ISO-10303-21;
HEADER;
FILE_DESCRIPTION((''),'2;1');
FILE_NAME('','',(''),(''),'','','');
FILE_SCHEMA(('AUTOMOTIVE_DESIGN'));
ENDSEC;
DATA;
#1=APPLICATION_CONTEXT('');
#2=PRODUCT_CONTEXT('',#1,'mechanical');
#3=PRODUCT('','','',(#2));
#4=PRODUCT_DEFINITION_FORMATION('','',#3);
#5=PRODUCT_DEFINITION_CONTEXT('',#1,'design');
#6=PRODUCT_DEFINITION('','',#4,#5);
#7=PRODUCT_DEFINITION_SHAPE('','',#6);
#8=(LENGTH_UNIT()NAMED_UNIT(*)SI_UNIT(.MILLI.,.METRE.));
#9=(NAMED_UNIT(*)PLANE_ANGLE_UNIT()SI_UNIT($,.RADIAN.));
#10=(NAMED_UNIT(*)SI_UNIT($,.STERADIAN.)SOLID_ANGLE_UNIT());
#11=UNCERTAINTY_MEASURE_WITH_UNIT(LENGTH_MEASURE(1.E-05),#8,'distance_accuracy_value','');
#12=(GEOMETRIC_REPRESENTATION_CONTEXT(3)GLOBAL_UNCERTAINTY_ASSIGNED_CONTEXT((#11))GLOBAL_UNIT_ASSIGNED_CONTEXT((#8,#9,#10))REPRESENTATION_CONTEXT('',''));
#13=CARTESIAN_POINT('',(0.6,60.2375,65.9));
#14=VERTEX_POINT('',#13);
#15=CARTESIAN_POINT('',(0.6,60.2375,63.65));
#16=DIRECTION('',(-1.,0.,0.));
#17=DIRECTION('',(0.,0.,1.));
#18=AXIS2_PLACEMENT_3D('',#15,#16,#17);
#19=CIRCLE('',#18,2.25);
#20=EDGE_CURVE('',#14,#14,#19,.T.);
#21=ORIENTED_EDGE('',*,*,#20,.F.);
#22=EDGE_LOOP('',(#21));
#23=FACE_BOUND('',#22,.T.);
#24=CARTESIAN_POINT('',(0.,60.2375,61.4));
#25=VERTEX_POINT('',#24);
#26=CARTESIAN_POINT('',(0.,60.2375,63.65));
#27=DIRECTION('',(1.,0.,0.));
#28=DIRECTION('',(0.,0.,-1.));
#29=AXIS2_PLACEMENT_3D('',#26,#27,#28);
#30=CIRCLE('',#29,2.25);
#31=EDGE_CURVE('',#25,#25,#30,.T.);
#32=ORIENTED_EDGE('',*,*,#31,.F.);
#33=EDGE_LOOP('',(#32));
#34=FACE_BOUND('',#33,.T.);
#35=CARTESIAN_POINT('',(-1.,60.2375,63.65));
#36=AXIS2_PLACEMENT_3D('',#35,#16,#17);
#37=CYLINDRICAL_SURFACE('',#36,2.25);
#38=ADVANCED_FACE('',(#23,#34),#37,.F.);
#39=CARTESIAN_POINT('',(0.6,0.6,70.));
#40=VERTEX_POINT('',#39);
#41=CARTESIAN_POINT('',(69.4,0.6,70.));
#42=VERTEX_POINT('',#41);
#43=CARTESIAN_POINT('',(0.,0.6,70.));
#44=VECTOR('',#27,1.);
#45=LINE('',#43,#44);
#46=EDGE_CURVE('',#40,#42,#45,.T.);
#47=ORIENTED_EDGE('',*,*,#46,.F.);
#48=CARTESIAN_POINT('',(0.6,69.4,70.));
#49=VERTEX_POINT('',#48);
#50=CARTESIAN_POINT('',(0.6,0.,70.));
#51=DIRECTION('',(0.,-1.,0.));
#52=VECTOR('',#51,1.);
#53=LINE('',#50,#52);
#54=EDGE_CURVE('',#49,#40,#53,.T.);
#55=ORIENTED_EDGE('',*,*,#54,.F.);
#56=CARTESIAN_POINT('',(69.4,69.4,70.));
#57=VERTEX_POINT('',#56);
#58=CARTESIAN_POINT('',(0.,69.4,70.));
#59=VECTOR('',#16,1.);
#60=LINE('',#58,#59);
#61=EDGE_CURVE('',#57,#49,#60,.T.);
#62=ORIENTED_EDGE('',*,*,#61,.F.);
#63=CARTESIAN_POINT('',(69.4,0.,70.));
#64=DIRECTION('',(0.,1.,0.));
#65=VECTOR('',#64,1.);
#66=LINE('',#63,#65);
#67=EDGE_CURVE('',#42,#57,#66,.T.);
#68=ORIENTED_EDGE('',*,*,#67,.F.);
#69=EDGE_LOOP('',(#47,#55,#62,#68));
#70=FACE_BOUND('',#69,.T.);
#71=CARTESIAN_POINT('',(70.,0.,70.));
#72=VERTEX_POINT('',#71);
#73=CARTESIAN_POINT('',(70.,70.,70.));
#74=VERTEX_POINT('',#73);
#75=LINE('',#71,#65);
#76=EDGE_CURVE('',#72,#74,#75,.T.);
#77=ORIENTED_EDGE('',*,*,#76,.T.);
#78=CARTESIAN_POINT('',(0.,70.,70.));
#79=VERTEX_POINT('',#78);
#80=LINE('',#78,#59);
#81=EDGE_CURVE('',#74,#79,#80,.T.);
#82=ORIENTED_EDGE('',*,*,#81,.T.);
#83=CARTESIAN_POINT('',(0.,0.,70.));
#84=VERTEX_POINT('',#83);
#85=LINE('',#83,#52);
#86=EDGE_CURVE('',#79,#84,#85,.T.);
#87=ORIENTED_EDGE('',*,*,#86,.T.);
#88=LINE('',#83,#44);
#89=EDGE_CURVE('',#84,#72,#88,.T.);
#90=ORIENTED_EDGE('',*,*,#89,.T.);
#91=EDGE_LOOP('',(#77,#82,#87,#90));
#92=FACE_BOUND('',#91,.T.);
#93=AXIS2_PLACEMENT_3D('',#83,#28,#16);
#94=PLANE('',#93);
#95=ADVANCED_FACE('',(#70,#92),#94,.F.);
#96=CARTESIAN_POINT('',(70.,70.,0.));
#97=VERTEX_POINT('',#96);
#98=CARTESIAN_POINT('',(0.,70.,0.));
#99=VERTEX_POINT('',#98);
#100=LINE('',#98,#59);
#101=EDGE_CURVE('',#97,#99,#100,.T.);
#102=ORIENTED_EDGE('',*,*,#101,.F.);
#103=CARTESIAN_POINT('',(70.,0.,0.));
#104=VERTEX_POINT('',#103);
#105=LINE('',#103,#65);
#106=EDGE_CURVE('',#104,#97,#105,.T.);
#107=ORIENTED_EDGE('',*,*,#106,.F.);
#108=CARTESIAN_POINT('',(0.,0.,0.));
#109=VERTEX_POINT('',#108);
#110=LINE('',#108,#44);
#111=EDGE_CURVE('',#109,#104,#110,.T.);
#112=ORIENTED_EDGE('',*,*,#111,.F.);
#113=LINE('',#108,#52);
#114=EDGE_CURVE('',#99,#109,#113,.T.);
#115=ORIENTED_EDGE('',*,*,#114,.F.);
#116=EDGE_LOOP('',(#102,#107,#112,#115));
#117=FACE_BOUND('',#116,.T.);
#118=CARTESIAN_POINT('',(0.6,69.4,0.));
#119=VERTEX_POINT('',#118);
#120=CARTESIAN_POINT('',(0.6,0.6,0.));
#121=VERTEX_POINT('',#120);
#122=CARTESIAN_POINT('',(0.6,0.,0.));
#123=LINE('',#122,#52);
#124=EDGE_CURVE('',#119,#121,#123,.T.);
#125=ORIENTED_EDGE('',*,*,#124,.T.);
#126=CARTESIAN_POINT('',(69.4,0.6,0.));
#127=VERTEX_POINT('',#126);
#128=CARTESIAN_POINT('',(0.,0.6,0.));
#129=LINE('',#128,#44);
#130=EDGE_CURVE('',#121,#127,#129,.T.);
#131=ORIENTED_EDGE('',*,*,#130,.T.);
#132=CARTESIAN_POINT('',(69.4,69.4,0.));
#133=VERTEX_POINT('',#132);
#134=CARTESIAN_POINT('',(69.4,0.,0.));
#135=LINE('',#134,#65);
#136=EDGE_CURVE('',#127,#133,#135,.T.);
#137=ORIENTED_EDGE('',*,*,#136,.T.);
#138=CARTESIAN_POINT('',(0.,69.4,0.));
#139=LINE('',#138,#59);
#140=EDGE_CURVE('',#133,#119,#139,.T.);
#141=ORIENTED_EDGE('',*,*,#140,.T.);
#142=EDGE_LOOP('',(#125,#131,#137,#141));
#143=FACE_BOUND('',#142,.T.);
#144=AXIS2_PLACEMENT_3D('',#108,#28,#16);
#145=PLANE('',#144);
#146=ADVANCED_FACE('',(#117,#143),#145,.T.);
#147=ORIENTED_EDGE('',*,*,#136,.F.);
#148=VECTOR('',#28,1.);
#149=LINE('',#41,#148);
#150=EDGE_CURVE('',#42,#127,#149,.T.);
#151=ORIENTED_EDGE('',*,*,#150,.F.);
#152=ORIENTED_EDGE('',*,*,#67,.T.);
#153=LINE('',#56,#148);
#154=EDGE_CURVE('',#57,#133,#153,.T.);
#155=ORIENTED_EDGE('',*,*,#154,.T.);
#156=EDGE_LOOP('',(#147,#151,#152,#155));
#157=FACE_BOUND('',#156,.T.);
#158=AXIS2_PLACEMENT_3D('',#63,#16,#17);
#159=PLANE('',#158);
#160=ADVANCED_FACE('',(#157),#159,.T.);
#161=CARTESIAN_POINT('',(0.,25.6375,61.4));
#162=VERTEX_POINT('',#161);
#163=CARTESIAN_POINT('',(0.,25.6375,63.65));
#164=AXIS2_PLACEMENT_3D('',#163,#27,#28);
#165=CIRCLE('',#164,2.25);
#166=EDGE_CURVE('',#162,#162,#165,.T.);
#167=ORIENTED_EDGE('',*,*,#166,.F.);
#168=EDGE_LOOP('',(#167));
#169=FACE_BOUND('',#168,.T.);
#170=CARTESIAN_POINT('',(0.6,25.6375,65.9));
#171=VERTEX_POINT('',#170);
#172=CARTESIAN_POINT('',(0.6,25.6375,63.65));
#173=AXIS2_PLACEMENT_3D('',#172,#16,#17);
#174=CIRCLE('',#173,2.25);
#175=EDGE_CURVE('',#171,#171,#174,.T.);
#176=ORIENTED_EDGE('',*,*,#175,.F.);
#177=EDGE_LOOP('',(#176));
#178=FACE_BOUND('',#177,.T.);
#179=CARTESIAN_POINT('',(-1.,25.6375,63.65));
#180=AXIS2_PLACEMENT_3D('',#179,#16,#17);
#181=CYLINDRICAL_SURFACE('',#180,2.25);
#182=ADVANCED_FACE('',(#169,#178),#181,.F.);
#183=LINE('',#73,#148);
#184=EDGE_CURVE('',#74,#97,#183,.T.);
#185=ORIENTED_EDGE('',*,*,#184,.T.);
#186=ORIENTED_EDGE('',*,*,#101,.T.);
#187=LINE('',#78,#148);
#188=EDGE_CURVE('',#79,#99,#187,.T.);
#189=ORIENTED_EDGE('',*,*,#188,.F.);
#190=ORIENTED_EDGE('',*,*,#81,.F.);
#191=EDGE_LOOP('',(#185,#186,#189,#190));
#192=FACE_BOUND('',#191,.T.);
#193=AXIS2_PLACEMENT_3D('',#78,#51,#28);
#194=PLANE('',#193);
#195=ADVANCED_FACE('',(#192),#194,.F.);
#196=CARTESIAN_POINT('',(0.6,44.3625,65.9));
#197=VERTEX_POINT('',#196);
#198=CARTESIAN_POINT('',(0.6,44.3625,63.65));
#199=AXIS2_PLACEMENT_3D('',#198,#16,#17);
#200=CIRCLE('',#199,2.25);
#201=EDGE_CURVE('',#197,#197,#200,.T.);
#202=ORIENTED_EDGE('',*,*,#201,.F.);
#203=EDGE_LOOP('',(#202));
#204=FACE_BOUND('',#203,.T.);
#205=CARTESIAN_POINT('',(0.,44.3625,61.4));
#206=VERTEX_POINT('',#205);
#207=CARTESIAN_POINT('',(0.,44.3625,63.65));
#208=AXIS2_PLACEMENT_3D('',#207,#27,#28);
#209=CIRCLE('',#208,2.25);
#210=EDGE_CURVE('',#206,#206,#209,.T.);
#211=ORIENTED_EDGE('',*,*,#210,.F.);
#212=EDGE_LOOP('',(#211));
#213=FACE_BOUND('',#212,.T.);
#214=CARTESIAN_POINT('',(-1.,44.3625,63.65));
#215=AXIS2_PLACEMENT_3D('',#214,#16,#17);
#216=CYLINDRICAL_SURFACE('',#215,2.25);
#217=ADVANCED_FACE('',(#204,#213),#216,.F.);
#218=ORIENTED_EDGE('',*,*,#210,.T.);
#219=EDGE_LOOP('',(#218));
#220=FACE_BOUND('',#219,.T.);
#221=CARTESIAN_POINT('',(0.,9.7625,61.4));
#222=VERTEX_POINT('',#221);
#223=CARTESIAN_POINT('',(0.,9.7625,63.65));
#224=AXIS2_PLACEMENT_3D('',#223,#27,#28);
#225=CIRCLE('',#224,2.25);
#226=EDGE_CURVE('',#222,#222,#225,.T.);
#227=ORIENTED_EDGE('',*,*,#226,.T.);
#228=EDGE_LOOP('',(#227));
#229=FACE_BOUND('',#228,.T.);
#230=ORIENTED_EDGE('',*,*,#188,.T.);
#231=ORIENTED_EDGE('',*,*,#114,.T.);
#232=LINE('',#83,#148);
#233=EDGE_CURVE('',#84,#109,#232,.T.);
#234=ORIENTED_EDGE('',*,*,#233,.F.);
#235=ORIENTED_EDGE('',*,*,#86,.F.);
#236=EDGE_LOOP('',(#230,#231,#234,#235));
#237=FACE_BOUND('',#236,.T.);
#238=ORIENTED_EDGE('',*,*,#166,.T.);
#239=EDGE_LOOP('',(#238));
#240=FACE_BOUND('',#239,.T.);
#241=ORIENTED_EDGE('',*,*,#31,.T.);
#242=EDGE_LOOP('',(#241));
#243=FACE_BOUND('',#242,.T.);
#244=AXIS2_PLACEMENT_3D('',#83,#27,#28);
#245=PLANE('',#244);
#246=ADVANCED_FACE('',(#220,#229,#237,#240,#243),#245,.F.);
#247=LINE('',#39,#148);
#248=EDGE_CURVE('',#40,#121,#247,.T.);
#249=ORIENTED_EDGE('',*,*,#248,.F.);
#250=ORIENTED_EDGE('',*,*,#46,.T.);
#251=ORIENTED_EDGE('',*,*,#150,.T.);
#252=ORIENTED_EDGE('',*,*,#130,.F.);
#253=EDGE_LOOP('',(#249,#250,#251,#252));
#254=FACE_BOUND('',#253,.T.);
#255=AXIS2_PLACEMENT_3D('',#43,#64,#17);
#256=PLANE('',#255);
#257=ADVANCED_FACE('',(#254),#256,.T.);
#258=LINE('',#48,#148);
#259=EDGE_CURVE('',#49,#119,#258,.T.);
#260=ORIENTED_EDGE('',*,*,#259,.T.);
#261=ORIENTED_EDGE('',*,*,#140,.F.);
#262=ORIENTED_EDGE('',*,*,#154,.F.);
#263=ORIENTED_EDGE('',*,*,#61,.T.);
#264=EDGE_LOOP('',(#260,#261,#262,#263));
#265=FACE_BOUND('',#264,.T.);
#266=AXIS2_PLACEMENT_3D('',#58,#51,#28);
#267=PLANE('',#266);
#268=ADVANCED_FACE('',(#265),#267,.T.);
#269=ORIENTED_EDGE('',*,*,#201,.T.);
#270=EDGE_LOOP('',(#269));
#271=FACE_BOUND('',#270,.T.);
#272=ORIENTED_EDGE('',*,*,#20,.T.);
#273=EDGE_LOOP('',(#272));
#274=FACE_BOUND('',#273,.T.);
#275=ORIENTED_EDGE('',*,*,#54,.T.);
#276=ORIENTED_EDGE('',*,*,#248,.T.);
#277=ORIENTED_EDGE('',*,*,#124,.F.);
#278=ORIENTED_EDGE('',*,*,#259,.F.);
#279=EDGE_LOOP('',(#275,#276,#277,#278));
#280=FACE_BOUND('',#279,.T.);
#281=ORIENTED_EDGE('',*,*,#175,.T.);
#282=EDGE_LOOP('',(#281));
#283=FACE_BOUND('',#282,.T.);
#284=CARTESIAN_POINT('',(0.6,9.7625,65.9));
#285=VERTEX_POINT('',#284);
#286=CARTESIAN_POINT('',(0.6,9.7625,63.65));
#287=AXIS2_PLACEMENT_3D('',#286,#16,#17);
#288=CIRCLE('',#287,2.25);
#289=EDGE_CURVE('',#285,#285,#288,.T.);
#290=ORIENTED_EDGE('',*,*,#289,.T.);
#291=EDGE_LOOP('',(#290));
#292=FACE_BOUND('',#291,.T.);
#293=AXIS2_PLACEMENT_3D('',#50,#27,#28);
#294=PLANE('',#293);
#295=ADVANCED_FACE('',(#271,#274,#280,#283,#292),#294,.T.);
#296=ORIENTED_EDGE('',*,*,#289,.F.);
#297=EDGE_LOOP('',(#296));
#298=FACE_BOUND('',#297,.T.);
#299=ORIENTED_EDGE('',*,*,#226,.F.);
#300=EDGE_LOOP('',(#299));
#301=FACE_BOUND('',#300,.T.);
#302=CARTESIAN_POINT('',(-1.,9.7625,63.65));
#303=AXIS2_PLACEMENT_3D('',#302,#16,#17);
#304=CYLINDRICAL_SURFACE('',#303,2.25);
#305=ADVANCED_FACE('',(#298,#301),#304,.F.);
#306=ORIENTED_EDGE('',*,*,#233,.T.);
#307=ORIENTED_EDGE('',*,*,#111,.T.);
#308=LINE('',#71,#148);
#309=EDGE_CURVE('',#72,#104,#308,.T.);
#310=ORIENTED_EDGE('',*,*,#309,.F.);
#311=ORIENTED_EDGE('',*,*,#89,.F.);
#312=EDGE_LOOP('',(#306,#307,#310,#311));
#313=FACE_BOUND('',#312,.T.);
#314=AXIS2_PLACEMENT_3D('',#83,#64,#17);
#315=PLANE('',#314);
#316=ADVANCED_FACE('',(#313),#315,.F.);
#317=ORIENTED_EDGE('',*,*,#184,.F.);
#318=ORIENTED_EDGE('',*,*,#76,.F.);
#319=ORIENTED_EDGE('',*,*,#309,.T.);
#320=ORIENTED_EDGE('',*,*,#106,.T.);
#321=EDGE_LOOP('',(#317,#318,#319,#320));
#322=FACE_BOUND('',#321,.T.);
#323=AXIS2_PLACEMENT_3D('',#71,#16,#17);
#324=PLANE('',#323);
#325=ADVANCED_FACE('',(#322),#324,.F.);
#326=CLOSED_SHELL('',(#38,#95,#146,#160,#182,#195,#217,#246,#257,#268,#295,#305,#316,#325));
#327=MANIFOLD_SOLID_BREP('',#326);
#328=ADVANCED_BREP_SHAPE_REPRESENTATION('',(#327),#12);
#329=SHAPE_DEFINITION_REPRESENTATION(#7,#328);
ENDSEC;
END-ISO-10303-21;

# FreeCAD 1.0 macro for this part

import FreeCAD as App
import Part
import Sketcher

V = App.Vector


def faces_at(feature, points):
    """Names of the faces that lie closest to the given points."""
    faces = feature.Shape.Faces
    near = lambda p: min(range(len(faces)), key=lambda i: faces[i].distToShape(Part.Vertex(*p))[0])
    return sorted({f"Face{near(p) + 1}" for p in points})


def add_polygon(sketch, points):
    """Adds a closed chain of lines whose ends are joined by coincident constraints."""
    first, n = sketch.GeometryCount, len(points)
    for a, b in zip(points, points[1:] + points[:1]):
        sketch.addGeometry(Part.LineSegment(App.Vector(*a, 0), App.Vector(*b, 0)), False)
    for i in range(n):
        sketch.addConstraint(Sketcher.Constraint("Coincident", first + i, 2, first + (i + 1) % n, 1))

doc = App.newDocument("Part")
params = doc.addObject("Spreadsheet::Sheet", "Params")
for row, (alias, value) in enumerate([
    ("sketch1_width", "70 mm"),
    ("pad1_length", "70 mm"),
    ("thickness_wall", "0.6 mm"),
    ("sketch2_diameter", "4.5 mm"),
    ("pocket1_length", "1.6 mm"),
    ("sketch3_diameter", "4.5 mm"),
    ("pocket2_length", "1.6 mm"),
    ("sketch4_diameter", "4.5 mm"),
    ("pocket3_length", "1.6 mm"),
    ("sketch5_diameter", "4.5 mm"),
    ("pocket4_length", "1.6 mm"),
], start=1):
    params.set(f"A{row}", alias)
    params.set(f"B{row}", "=" + value)
    params.setAlias(f"B{row}", alias)

body = doc.addObject("PartDesign::Body", "Body")

sketch1 = doc.addObject("Sketcher::SketchObject", "Sketch")
body.addObject(sketch1)
sketch1.AttachmentSupport = (doc.XY_Plane, [""])
sketch1.MapMode = "FlatFace"
add_polygon(sketch1, [(0, 70), (0, 0), (70, 0), (70, 70)])
sketch1.addConstraint([
    Sketcher.Constraint("Vertical", 0),
    Sketcher.Constraint("Horizontal", 1),
    Sketcher.Constraint("Vertical", 2),
    Sketcher.Constraint("Horizontal", 3),
    Sketcher.Constraint("Coincident", 0, 2, -1, 1),
    Sketcher.Constraint("Equal", 3, 0),
    Sketcher.Constraint("DistanceX", 1, 1, 1, 2, 70.0),
])
sketch1.setExpression("Constraints[10]", "Params.sketch1_width")
pad1 = doc.addObject("PartDesign::Pad", "Pad")
body.addObject(pad1)
pad1.Profile = sketch1
pad1.setExpression("Length", "Params.pad1_length")
doc.recompute()

thickness = doc.addObject("PartDesign::Thickness", "Thickness")
body.addObject(thickness)
thickness.Base = (pad1, faces_at(pad1, [(35, 35, 70), (35, 35, 0)]))
thickness.setExpression("Value", "Params.thickness_wall")
thickness.Reversed = True
thickness.Join = "Intersection"

sketch2 = doc.addObject("Sketcher::SketchObject", "Sketch001")
body.addObject(sketch2)
sketch2.AttachmentSupport = (doc.YZ_Plane, [""])
sketch2.MapMode = "FlatFace"
sketch2.AttachmentOffset = App.Placement(V(0, 0, -1), App.Rotation())
sketch2.addGeometry(Part.Circle(V(9.8, 63.6, 0), V(0, 0, 1), 2.2), False)
sketch2.addConstraint([
    Sketcher.Constraint("Diameter", 0, 4.5),
    Sketcher.Constraint("DistanceY", -1, 1, 0, 3, 63.65),
    Sketcher.Constraint("DistanceX", -1, 1, 0, 3, 9.7625),
])
sketch2.setExpression("Constraints[0]", "Params.sketch2_diameter")
pocket1 = doc.addObject("PartDesign::Pocket", "Pocket")
body.addObject(pocket1)
pocket1.Profile = sketch2
pocket1.setExpression("Length", "Params.pocket1_length")
pocket1.Reversed = True

sketch3 = doc.addObject("Sketcher::SketchObject", "Sketch002")
body.addObject(sketch3)
sketch3.AttachmentSupport = (doc.YZ_Plane, [""])
sketch3.MapMode = "FlatFace"
sketch3.AttachmentOffset = App.Placement(V(0, 0, -1), App.Rotation())
sketch3.addGeometry(Part.Circle(V(25.6, 63.6, 0), V(0, 0, 1), 2.2), False)
sketch3.addConstraint([
    Sketcher.Constraint("Diameter", 0, 4.5),
    Sketcher.Constraint("DistanceY", -1, 1, 0, 3, 63.65),
    Sketcher.Constraint("DistanceX", -1, 1, 0, 3, 25.6375),
])
sketch3.setExpression("Constraints[0]", "Params.sketch3_diameter")
pocket2 = doc.addObject("PartDesign::Pocket", "Pocket001")
body.addObject(pocket2)
pocket2.Profile = sketch3
pocket2.setExpression("Length", "Params.pocket2_length")
pocket2.Reversed = True

sketch4 = doc.addObject("Sketcher::SketchObject", "Sketch003")
body.addObject(sketch4)
sketch4.AttachmentSupport = (doc.YZ_Plane, [""])
sketch4.MapMode = "FlatFace"
sketch4.AttachmentOffset = App.Placement(V(0, 0, -1), App.Rotation())
sketch4.addGeometry(Part.Circle(V(44.4, 63.6, 0), V(0, 0, 1), 2.2), False)
sketch4.addConstraint([
    Sketcher.Constraint("Diameter", 0, 4.5),
    Sketcher.Constraint("DistanceY", -1, 1, 0, 3, 63.65),
    Sketcher.Constraint("DistanceX", -1, 1, 0, 3, 44.3625),
])
sketch4.setExpression("Constraints[0]", "Params.sketch4_diameter")
pocket3 = doc.addObject("PartDesign::Pocket", "Pocket002")
body.addObject(pocket3)
pocket3.Profile = sketch4
pocket3.setExpression("Length", "Params.pocket3_length")
pocket3.Reversed = True

sketch5 = doc.addObject("Sketcher::SketchObject", "Sketch004")
body.addObject(sketch5)
sketch5.AttachmentSupport = (doc.YZ_Plane, [""])
sketch5.MapMode = "FlatFace"
sketch5.AttachmentOffset = App.Placement(V(0, 0, -1), App.Rotation())
sketch5.addGeometry(Part.Circle(V(60.2, 63.6, 0), V(0, 0, 1), 2.2), False)
sketch5.addConstraint([
    Sketcher.Constraint("Diameter", 0, 4.5),
    Sketcher.Constraint("DistanceY", -1, 1, 0, 3, 63.65),
    Sketcher.Constraint("DistanceX", -1, 1, 0, 3, 60.2375),
])
sketch5.setExpression("Constraints[0]", "Params.sketch5_diameter")
pocket4 = doc.addObject("PartDesign::Pocket", "Pocket003")
body.addObject(pocket4)
pocket4.Profile = sketch5
pocket4.setExpression("Length", "Params.pocket4_length")
pocket4.Reversed = True

doc.recompute()
